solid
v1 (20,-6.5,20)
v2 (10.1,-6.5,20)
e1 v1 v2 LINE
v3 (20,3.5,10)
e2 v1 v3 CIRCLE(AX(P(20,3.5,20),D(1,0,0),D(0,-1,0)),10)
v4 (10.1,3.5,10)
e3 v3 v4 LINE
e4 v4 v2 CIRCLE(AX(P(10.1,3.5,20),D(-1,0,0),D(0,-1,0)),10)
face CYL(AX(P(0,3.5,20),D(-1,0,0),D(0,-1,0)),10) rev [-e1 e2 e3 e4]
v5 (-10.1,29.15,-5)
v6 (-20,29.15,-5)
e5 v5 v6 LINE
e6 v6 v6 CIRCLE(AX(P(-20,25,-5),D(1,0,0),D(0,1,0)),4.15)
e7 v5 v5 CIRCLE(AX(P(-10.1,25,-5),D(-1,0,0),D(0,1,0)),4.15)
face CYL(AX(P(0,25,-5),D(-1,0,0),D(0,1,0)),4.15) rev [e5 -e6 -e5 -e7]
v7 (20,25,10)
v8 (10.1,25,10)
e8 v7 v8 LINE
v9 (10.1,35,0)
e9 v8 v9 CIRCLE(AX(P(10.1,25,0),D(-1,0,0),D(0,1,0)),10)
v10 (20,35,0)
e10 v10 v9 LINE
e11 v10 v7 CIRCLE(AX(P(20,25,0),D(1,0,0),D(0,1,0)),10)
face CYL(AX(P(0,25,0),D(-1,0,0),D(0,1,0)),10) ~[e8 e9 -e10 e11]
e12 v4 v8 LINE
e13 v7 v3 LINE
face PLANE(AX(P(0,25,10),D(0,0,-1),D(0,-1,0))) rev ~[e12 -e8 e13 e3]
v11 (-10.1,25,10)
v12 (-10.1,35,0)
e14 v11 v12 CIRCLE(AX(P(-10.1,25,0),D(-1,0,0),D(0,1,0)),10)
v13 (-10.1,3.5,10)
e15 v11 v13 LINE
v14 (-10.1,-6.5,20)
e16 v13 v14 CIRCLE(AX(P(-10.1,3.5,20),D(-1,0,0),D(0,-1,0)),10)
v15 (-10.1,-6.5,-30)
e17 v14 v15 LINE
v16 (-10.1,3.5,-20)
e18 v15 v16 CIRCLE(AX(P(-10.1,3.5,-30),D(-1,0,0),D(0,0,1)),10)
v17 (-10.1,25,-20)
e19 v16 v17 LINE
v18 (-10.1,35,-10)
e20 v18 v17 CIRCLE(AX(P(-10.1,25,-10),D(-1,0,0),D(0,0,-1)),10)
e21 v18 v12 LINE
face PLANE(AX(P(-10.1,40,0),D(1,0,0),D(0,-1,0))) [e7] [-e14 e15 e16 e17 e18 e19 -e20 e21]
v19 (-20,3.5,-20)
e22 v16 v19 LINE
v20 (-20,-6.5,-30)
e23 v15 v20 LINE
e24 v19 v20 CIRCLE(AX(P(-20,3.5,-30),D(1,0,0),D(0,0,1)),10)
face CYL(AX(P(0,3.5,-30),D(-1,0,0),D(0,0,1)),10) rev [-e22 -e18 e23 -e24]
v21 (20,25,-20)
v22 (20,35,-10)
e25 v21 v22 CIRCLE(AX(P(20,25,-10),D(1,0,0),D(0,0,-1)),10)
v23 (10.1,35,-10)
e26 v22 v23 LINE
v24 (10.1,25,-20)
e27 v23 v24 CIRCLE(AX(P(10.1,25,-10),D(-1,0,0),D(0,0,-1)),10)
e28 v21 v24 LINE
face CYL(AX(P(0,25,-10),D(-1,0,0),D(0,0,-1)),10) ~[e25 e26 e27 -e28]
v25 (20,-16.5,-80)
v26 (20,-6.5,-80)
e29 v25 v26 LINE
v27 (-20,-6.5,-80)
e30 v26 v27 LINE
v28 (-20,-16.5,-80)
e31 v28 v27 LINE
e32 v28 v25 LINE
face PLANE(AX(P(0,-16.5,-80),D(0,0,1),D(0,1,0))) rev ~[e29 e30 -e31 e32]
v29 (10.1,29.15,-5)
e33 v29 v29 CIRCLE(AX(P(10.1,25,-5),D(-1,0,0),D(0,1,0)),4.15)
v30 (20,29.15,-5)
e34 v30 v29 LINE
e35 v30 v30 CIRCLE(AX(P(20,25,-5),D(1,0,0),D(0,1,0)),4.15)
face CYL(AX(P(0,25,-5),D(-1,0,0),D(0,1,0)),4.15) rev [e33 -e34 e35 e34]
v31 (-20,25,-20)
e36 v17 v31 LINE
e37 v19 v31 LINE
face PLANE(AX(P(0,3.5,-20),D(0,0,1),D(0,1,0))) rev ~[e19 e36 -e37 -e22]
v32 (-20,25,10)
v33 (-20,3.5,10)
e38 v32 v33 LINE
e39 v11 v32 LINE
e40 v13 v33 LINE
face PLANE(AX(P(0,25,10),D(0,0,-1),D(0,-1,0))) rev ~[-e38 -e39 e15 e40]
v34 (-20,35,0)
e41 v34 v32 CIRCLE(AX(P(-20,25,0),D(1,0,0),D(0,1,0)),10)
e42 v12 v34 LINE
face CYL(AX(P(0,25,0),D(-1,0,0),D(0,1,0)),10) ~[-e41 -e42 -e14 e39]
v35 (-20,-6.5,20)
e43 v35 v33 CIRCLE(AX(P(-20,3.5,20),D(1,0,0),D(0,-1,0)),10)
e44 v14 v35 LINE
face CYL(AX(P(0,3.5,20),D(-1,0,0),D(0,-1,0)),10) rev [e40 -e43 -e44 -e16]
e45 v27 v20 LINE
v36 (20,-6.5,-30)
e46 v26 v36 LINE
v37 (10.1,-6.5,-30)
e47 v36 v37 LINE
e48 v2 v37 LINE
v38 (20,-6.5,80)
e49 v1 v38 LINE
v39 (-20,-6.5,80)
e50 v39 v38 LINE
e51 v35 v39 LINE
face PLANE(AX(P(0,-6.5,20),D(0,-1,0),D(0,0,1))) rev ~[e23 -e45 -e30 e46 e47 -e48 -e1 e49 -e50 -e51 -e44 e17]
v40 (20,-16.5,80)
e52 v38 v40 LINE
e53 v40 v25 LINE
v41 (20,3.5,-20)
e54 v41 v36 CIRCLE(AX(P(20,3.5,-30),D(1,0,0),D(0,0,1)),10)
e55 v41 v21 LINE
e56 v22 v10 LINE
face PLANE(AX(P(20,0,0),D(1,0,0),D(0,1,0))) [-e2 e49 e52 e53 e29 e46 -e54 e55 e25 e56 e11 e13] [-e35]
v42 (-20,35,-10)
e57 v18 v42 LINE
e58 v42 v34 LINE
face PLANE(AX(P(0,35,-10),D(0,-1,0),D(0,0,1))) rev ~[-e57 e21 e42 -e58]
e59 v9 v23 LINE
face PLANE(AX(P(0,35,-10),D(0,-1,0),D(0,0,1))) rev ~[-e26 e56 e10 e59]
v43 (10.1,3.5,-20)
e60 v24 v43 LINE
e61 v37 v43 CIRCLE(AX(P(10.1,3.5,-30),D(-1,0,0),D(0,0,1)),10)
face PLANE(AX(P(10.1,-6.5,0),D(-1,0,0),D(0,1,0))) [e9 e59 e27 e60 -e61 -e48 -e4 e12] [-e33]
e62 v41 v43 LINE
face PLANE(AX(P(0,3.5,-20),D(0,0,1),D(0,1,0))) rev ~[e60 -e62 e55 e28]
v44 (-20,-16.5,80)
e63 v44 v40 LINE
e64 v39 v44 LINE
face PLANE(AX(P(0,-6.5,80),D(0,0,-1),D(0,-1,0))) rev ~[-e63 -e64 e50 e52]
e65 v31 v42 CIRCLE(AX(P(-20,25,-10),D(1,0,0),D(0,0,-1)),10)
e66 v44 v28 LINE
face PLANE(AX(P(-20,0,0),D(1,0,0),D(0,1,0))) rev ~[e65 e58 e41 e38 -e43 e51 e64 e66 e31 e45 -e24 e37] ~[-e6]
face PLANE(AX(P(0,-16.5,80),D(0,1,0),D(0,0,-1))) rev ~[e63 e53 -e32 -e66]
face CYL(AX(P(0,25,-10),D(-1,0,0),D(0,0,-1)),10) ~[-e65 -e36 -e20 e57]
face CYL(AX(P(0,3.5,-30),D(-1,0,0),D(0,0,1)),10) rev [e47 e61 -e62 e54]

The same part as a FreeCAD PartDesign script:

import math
import FreeCAD as App
import Part
import Sketcher

doc = App.newDocument("Part")
body = doc.addObject("PartDesign::Body", "Body")

sketch1 = doc.addObject("Sketcher::SketchObject", "Sketch")
body.addObject(sketch1)
sketch1.AttachmentSupport = (doc.YZ_Plane, [""])
sketch1.MapMode = "FlatFace"
sketch1.addGeometry(Part.LineSegment(App.Vector(-6.5, 20, 0), App.Vector(-6.5, 80, 0)), False)
sketch1.addGeometry(Part.LineSegment(App.Vector(-6.5, 80, 0), App.Vector(-16.5, 80, 0)), False)
sketch1.addGeometry(Part.LineSegment(App.Vector(-16.5, 80, 0), App.Vector(-16.5, -80, 0)), False)
sketch1.addGeometry(Part.LineSegment(App.Vector(-16.5, -80, 0), App.Vector(-6.5, -80, 0)), False)
sketch1.addGeometry(Part.LineSegment(App.Vector(-6.5, -80, 0), App.Vector(-6.5, -30, 0)), False)
sketch1.addGeometry(Part.ArcOfCircle(Part.Circle(App.Vector(3.5, -30, 0), App.Vector(0, 0, 1), 10), math.radians(90), math.radians(180)), False)
sketch1.addGeometry(Part.LineSegment(App.Vector(3.5, -20, 0), App.Vector(25, -20, 0)), False)
sketch1.addGeometry(Part.ArcOfCircle(Part.Circle(App.Vector(25, -10, 0), App.Vector(0, 0, 1), 10), math.radians(-90), math.radians(0)), False)
sketch1.addGeometry(Part.LineSegment(App.Vector(35, -10, 0), App.Vector(35, 0, 0)), False)
sketch1.addGeometry(Part.ArcOfCircle(Part.Circle(App.Vector(25, 0, 0), App.Vector(0, 0, 1), 10), math.radians(0), math.radians(90)), False)
sketch1.addGeometry(Part.LineSegment(App.Vector(25, 10, 0), App.Vector(3.5, 10, 0)), False)
sketch1.addGeometry(Part.ArcOfCircle(Part.Circle(App.Vector(3.5, 20, 0), App.Vector(0, 0, 1), 10), math.radians(180), math.radians(270)), False)
sketch1.addGeometry(Part.Circle(App.Vector(25, -5, 0), App.Vector(0, 0, 1), 4.2), False)
sketch1.addConstraint(Sketcher.Constraint("Coincident", 0, 2, 1, 1))
sketch1.addConstraint(Sketcher.Constraint("Coincident", 1, 2, 2, 1))
sketch1.addConstraint(Sketcher.Constraint("Coincident", 2, 2, 3, 1))
sketch1.addConstraint(Sketcher.Constraint("Coincident", 3, 2, 4, 1))
sketch1.addConstraint(Sketcher.Constraint("Tangent", 4, 2, 5, 2))
sketch1.addConstraint(Sketcher.Constraint("Tangent", 5, 1, 6, 1))
sketch1.addConstraint(Sketcher.Constraint("Tangent", 6, 2, 7, 1))
sketch1.addConstraint(Sketcher.Constraint("Tangent", 7, 2, 8, 1))
sketch1.addConstraint(Sketcher.Constraint("Tangent", 8, 2, 9, 1))
sketch1.addConstraint(Sketcher.Constraint("Tangent", 9, 2, 10, 1))
sketch1.addConstraint(Sketcher.Constraint("Tangent", 10, 2, 11, 2))
sketch1.addConstraint(Sketcher.Constraint("Tangent", 11, 1, 0, 1))
sketch1.addConstraint(Sketcher.Constraint("Vertical", 0))
sketch1.addConstraint(Sketcher.Constraint("Horizontal", 1))
sketch1.addConstraint(Sketcher.Constraint("Vertical", 2))
sketch1.addConstraint(Sketcher.Constraint("Horizontal", 3))
sketch1.addConstraint(Sketcher.Constraint("Vertical", 4))
sketch1.addConstraint(Sketcher.Constraint("Horizontal", 6))
sketch1.addConstraint(Sketcher.Constraint("Vertical", 8))
sketch1.addConstraint(Sketcher.Constraint("Horizontal", 10))
sketch1.addConstraint(Sketcher.Constraint("Equal", 5, 7))
sketch1.addConstraint(Sketcher.Constraint("Equal", 7, 9))
sketch1.addConstraint(Sketcher.Constraint("Equal", 9, 11))
sketch1.addConstraint(Sketcher.Constraint("Symmetric", 0, 2, 3, 2, -1))
sketch1.addConstraint(Sketcher.Constraint("PointOnObject", 9, 3, -1))
sketch1.addConstraint(Sketcher.Constraint("Vertical", 9, 3, 12, 3))
sketch1.addConstraint(Sketcher.Constraint("Equal", 3, 8))
sketch1.addConstraint(Sketcher.Constraint("Radius", 5, 10.0))
sketch1.addConstraint(Sketcher.Constraint("Diameter", 12, 8.3))
sketch1.addConstraint(Sketcher.Constraint("DistanceX", 1, 2, 1, 1, 10.0))
sketch1.addConstraint(Sketcher.Constraint("DistanceX", -1, 1, 7, 3, 25.0))
sketch1.addConstraint(Sketcher.Constraint("DistanceY", 12, 3, -1, 1, 5.0))
sketch1.addConstraint(Sketcher.Constraint("DistanceY", -1, 1, 0, 2, 80.0))
sketch1.addConstraint(Sketcher.Constraint("DistanceX", 0, 2, 9, 3, 31.5))
pad1 = doc.addObject("PartDesign::Pad", "Pad")
body.addObject(pad1)
pad1.Profile = sketch1
pad1.Length = 40
pad1.Midplane = True

sketch2 = doc.addObject("Sketcher::SketchObject", "Sketch001")
body.addObject(sketch2)
sketch2.AttachmentSupport = (doc.XY_Plane, [""])
sketch2.MapMode = "FlatFace"
sketch2.addGeometry(Part.LineSegment(App.Vector(10, -6, 0), App.Vector(10, 40, 0)), False)
sketch2.addGeometry(Part.LineSegment(App.Vector(10, 40, 0), App.Vector(-10, 40, 0)), False)
sketch2.addGeometry(Part.LineSegment(App.Vector(-10, 40, 0), App.Vector(-10, -6, 0)), False)
sketch2.addGeometry(Part.LineSegment(App.Vector(-10, -6, 0), App.Vector(10, -6, 0)), False)
sketch2.addConstraint(Sketcher.Constraint("Coincident", 0, 2, 1, 1))
sketch2.addConstraint(Sketcher.Constraint("Coincident", 1, 2, 2, 1))
sketch2.addConstraint(Sketcher.Constraint("Coincident", 2, 2, 3, 1))
sketch2.addConstraint(Sketcher.Constraint("Coincident", 3, 2, 0, 1))
sketch2.addConstraint(Sketcher.Constraint("Vertical", 0))
sketch2.addConstraint(Sketcher.Constraint("Horizontal", 1))
sketch2.addConstraint(Sketcher.Constraint("Vertical", 2))
sketch2.addConstraint(Sketcher.Constraint("Horizontal", 3))
sketch2.addConstraint(Sketcher.Constraint("DistanceY", -1, 1, 0, 2, 40.0))
sketch2.addConstraint(Sketcher.Constraint("DistanceX", -1, 1, 0, 2, 10.1))
sketch2.addConstraint(Sketcher.Constraint("DistanceX", 1, 2, -1, 1, 10.1))
sketch2.addConstraint(Sketcher.Constraint("DistanceY", 2, 2, -1, 1, 6.5))
pocket1 = doc.addObject("PartDesign::Pocket", "Pocket")
body.addObject(pocket1)
pocket1.Profile = sketch2
pocket1.Length = 200
pocket1.Midplane = True

doc.recompute()
